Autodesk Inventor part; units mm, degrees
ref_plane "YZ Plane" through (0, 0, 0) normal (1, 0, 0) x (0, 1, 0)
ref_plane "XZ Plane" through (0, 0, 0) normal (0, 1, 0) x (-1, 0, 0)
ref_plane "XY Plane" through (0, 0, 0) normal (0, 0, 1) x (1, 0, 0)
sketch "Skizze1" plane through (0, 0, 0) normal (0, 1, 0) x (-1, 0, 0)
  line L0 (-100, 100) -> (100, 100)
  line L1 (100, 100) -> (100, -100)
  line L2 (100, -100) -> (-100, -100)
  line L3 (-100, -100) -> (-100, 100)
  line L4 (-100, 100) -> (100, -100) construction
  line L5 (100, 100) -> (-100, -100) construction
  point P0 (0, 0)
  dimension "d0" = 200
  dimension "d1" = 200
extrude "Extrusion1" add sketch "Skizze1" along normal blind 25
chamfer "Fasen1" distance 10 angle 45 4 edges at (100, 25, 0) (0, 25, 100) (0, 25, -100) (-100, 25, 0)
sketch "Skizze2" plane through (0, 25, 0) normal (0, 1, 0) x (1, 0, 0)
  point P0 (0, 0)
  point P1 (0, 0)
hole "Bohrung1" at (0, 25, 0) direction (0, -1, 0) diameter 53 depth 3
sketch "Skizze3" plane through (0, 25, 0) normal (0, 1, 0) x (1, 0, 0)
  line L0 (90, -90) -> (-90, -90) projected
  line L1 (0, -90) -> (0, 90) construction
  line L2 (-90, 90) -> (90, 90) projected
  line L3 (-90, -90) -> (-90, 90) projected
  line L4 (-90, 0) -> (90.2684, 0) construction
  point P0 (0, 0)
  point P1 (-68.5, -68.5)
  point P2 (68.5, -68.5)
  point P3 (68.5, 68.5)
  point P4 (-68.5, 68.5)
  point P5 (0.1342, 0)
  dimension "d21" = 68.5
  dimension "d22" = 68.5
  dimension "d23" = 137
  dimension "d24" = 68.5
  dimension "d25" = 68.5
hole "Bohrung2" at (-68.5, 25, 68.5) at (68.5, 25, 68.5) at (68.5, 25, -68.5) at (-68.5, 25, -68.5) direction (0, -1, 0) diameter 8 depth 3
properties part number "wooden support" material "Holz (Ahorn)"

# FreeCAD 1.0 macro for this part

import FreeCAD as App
import Part
import Sketcher


def edges_at(feature, points):
    """Names of the edges that pass closest to the given points."""
    edges = feature.Shape.Edges
    near = lambda p: min(range(len(edges)), key=lambda i: edges[i].distToShape(Part.Vertex(*p))[0])
    return sorted({f"Edge{near(p) + 1}" for p in points})

doc = App.newDocument("Part")
body = doc.addObject("PartDesign::Body", "Body")

# Sketch on XZ plane
sketch1 = doc.addObject("Sketcher::SketchObject", "Sketch")
body.addObject(sketch1)
sketch1.AttachmentSupport = (doc.XZ_Plane, [""])
sketch1.MapMode = "FlatFace"
sketch1.addGeometry([
    Part.LineSegment(App.Vector(-100, 100, 0), App.Vector(100, 100, 0)),
    Part.LineSegment(App.Vector(100, 100, 0), App.Vector(100, -100, 0)),
    Part.LineSegment(App.Vector(100, -100, 0), App.Vector(-100, -100, 0)),
    Part.LineSegment(App.Vector(-100, -100, 0), App.Vector(-100, 100, 0)),
], False)
sketch1.addConstraint([
    Sketcher.Constraint("Coincident", 0, 2, 1, 1),
    Sketcher.Constraint("Coincident", 1, 2, 2, 1),
    Sketcher.Constraint("Coincident", 2, 2, 3, 1),
    Sketcher.Constraint("Coincident", 3, 2, 0, 1),
    Sketcher.Constraint("Horizontal", 0),
    Sketcher.Constraint("Vertical", 1),
    Sketcher.Constraint("Horizontal", 2),
    Sketcher.Constraint("Vertical", 3),
    Sketcher.Constraint("Symmetric", 0, 2, 2, 2, -1, 1),
    Sketcher.Constraint("Equal", 2, 1),
    Sketcher.Constraint("DistanceX", 0, 1, 0, 2, 200.0),
])
pad1 = doc.addObject("PartDesign::Pad", "Pad")
body.addObject(pad1)
pad1.Profile = sketch1
pad1.Length = 25
pad1.Reversed = True
doc.recompute()

chamfer = doc.addObject("PartDesign::Chamfer", "Chamfer")
body.addObject(chamfer)
chamfer.Base = (pad1, edges_at(pad1, [
    (100, 25, 0),
    (0, 25, 100),
    (0, 25, -100),
    (-100, 25, 0),
]))
chamfer.Size = 10

# Sketch on XZ plane
sketch2 = doc.addObject("Sketcher::SketchObject", "Sketch001")
body.addObject(sketch2)
sketch2.AttachmentSupport = (doc.XZ_Plane, [""])
sketch2.MapMode = "FlatFace"
sketch2.AttachmentOffset = App.Placement(App.Vector(0, 0, -25), App.Rotation())
sketch2.addGeometry(Part.Circle(App.Vector(0, 0, 0), App.Vector(0, 0, 1), 26), False)
sketch2.addConstraint([
    Sketcher.Constraint("Coincident", 0, 3, -1, 1),
    Sketcher.Constraint("Diameter", 0, 53.0),
])
doc.recompute()
hole = doc.addObject("PartDesign::Hole", "Hole")
body.addObject(hole)
hole.Profile = sketch2
hole.ThreadType = "None"
hole.Diameter = 53
hole.DepthType = "Dimension"
hole.Depth = 3
hole.DrillPoint = "Flat"
hole.Reversed = True

# Sketch on XZ plane
sketch3 = doc.addObject("Sketcher::SketchObject", "Sketch002")
body.addObject(sketch3)
sketch3.AttachmentSupport = (doc.XZ_Plane, [""])
sketch3.MapMode = "FlatFace"
sketch3.AttachmentOffset = App.Placement(App.Vector(0, 0, -25), App.Rotation())
sketch3.addGeometry([
    Part.Circle(App.Vector(-68.5, 68.5, 0), App.Vector(0, 0, 1), 4),
    Part.Circle(App.Vector(68.5, 68.5, 0), App.Vector(0, 0, 1), 4),
    Part.Circle(App.Vector(68.5, -68.5, 0), App.Vector(0, 0, 1), 4),
    Part.Circle(App.Vector(-68.5, -68.5, 0), App.Vector(0, 0, 1), 4),
], False)
sketch3.addConstraint([
    Sketcher.Constraint("Equal", 0, 1),
    Sketcher.Constraint("Equal", 1, 2),
    Sketcher.Constraint("Equal", 2, 3),
    Sketcher.Constraint("Symmetric", 0, 3, 2, 3, -1, 1),
    Sketcher.Constraint("Symmetric", 1, 3, 3, 3, -1, 1),
    Sketcher.Constraint("Symmetric", 0, 3, 1, 3, -2),
    Sketcher.Constraint("Diameter", 0, 8.0),
    Sketcher.Constraint("DistanceX", 0, 3, 1, 3, 137.0),
    Sketcher.Constraint("DistanceY", 2, 3, 1, 3, 137.0),
])
doc.recompute()
hole2 = doc.addObject("PartDesign::Hole", "Hole001")
body.addObject(hole2)
hole2.Profile = sketch3
hole2.ThreadType = "None"
hole2.Diameter = 8
hole2.DepthType = "Dimension"
hole2.Depth = 3
hole2.DrillPoint = "Flat"
hole2.Reversed = True

doc.recompute()
